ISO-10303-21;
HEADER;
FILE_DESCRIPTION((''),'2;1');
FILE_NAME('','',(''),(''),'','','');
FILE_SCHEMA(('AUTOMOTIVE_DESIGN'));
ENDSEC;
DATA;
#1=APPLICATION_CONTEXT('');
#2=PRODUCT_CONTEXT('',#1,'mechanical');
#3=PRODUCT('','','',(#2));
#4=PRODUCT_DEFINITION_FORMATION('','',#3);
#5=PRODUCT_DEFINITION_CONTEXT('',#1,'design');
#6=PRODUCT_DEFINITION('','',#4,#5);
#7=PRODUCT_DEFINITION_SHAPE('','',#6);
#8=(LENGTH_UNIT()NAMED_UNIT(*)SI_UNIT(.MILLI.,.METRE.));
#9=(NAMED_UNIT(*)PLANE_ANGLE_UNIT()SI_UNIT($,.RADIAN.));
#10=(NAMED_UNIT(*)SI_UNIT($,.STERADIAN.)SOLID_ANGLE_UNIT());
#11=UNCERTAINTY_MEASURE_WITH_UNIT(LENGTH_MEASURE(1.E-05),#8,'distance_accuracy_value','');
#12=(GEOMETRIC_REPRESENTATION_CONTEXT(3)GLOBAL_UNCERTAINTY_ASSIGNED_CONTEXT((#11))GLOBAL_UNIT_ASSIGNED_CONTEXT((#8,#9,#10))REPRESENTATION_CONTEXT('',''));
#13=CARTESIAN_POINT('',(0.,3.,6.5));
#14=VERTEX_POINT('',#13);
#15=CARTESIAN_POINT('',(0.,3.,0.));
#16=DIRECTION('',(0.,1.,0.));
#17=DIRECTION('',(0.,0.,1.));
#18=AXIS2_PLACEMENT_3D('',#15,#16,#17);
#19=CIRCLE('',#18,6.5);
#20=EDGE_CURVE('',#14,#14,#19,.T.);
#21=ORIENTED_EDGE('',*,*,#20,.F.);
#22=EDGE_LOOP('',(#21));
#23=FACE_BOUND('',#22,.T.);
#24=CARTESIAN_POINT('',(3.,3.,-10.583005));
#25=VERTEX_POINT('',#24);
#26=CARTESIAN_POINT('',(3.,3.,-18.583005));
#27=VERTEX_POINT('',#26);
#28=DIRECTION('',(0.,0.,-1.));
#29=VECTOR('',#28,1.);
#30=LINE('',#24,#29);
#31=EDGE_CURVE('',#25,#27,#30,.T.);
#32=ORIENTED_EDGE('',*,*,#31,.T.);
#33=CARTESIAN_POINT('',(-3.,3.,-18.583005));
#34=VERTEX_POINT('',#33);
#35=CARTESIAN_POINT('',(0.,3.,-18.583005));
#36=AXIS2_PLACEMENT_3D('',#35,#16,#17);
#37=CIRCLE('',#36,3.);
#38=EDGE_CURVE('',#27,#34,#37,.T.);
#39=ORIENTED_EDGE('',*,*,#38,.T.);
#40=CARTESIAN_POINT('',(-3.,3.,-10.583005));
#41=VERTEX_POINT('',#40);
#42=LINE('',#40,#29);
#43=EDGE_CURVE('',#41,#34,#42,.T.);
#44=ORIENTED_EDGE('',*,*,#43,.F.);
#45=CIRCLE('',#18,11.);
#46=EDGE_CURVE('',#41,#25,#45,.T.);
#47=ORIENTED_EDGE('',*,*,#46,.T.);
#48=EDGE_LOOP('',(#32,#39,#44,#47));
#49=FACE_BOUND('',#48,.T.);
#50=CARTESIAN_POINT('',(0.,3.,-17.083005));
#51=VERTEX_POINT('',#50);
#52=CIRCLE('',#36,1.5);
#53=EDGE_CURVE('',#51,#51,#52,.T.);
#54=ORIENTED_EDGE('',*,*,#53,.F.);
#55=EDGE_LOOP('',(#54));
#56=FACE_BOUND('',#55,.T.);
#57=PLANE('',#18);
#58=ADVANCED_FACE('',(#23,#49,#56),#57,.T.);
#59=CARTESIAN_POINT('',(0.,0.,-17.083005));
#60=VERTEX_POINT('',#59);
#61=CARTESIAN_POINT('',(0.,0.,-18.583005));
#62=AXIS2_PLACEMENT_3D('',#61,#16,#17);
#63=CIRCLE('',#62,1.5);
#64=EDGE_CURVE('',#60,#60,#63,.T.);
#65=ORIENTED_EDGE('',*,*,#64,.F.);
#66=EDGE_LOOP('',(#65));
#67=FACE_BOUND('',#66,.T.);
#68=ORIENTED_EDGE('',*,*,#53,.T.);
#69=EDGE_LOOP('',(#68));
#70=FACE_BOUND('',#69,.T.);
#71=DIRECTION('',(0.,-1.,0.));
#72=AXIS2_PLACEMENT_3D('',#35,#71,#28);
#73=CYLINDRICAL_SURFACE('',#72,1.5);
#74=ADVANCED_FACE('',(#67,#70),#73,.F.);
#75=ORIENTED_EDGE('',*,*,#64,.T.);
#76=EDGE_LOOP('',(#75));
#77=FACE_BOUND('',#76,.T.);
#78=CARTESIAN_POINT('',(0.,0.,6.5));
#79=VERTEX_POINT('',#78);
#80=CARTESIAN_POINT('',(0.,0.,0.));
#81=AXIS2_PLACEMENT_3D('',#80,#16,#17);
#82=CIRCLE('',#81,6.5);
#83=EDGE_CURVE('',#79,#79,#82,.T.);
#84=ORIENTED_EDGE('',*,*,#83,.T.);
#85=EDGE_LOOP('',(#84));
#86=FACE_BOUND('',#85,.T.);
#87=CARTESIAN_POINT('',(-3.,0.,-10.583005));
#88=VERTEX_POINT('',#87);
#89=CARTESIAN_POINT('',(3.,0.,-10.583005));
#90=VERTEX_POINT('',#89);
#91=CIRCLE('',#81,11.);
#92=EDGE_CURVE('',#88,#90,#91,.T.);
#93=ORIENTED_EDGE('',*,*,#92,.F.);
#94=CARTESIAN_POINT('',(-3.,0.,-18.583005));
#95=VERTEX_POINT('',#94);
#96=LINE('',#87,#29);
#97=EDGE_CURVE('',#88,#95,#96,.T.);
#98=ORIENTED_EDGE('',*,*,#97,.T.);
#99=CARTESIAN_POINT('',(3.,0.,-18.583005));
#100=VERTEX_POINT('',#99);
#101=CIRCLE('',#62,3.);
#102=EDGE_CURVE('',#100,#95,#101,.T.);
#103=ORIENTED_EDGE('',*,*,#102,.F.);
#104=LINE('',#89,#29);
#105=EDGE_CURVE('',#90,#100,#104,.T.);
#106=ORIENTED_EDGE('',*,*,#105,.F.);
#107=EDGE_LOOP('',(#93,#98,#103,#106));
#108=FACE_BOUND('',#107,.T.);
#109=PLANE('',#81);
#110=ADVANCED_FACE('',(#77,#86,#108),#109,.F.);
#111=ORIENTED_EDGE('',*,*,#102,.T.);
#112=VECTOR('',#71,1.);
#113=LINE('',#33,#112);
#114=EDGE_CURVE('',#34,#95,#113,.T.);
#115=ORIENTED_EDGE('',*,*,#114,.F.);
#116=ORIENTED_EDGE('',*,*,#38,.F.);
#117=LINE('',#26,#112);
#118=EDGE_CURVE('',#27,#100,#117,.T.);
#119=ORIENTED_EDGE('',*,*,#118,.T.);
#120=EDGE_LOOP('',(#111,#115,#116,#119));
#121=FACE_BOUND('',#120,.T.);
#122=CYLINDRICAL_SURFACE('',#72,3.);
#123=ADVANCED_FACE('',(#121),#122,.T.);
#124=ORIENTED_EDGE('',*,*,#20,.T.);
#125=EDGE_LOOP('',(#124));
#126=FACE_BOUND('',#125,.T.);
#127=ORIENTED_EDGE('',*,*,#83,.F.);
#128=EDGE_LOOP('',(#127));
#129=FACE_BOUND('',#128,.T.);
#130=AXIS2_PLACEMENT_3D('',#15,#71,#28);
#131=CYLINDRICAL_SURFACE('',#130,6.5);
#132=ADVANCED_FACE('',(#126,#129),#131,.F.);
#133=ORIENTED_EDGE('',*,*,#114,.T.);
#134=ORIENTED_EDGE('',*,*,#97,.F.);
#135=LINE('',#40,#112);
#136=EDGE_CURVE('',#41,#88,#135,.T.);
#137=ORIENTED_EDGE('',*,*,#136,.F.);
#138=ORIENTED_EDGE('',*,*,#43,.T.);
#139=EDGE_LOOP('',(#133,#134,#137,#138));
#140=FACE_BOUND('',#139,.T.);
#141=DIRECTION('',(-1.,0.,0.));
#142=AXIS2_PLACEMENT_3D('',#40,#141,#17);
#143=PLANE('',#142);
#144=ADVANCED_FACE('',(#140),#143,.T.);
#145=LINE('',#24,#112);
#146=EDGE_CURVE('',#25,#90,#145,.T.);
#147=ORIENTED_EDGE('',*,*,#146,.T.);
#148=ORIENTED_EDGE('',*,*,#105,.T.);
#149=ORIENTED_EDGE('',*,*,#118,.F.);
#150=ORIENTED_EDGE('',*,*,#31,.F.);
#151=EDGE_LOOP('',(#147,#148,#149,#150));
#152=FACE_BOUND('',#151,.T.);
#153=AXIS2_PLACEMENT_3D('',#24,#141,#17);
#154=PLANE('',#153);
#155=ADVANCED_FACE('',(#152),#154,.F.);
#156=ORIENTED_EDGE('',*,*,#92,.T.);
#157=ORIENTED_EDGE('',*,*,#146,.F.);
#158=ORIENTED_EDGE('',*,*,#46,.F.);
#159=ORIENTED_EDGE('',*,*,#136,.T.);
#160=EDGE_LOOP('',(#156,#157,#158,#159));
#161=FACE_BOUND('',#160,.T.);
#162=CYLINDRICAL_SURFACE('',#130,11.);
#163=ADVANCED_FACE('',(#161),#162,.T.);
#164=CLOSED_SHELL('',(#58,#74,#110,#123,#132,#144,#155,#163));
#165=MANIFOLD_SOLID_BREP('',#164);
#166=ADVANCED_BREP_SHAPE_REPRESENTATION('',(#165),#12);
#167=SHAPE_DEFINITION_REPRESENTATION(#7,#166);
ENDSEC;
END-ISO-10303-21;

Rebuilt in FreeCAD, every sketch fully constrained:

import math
import FreeCAD as App
import Part
import Sketcher

doc = App.newDocument("Part")
body = doc.addObject("PartDesign::Body", "Body")

sketch1 = doc.addObject("Sketcher::SketchObject", "Sketch")
body.addObject(sketch1)
sketch1.AttachmentSupport = (doc.XZ_Plane, [""])
sketch1.MapMode = "FlatFace"
sketch1.addGeometry([
    Part.LineSegment(App.Vector(3, -10.6, 0), App.Vector(3, -18.6, 0)),
    Part.ArcOfCircle(Part.Circle(App.Vector(0, -18.6, 0), App.Vector(0, 0, 1), 3), math.radians(180), math.radians(360)),
    Part.LineSegment(App.Vector(-3, -18.6, 0), App.Vector(-3, -10.6, 0)),
    Part.ArcOfCircle(Part.Circle(App.Vector(0, 0, 0), App.Vector(0, 0, 1), 11), math.radians(-74), math.radians(254)),
    Part.Circle(App.Vector(0, 0, 0), App.Vector(0, 0, 1), 6.5),
    Part.Circle(App.Vector(0, -18.6, 0), App.Vector(0, 0, 1), 1.5),
], False)
sketch1.addConstraint([
    Sketcher.Constraint("Tangent", 0, 2, 1, 2),
    Sketcher.Constraint("Tangent", 1, 1, 2, 1),
    Sketcher.Constraint("Coincident", 2, 2, 3, 2),
    Sketcher.Constraint("Coincident", 3, 1, 0, 1),
    Sketcher.Constraint("Vertical", 0),
    Sketcher.Constraint("Vertical", 2),
    Sketcher.Constraint("Coincident", 3, 3, -1, 1),
    Sketcher.Constraint("Coincident", 4, 3, -1, 1),
    Sketcher.Constraint("Coincident", 5, 3, 1, 3),
    Sketcher.Constraint("PointOnObject", 1, 3, -2),
    Sketcher.Constraint("Diameter", 4, 13.0),
    Sketcher.Constraint("Diameter", 5, 3.0),
    Sketcher.Constraint("Radius", 1, 3.0),
    Sketcher.Constraint("Radius", 3, 11.0),
    Sketcher.Constraint("DistanceY", 0, 2, 0, 1, 8.0),
])
pad1 = doc.addObject("PartDesign::Pad", "Pad")
body.addObject(pad1)
pad1.Profile = sketch1
pad1.Length = 3
pad1.Reversed = True

doc.recompute()
